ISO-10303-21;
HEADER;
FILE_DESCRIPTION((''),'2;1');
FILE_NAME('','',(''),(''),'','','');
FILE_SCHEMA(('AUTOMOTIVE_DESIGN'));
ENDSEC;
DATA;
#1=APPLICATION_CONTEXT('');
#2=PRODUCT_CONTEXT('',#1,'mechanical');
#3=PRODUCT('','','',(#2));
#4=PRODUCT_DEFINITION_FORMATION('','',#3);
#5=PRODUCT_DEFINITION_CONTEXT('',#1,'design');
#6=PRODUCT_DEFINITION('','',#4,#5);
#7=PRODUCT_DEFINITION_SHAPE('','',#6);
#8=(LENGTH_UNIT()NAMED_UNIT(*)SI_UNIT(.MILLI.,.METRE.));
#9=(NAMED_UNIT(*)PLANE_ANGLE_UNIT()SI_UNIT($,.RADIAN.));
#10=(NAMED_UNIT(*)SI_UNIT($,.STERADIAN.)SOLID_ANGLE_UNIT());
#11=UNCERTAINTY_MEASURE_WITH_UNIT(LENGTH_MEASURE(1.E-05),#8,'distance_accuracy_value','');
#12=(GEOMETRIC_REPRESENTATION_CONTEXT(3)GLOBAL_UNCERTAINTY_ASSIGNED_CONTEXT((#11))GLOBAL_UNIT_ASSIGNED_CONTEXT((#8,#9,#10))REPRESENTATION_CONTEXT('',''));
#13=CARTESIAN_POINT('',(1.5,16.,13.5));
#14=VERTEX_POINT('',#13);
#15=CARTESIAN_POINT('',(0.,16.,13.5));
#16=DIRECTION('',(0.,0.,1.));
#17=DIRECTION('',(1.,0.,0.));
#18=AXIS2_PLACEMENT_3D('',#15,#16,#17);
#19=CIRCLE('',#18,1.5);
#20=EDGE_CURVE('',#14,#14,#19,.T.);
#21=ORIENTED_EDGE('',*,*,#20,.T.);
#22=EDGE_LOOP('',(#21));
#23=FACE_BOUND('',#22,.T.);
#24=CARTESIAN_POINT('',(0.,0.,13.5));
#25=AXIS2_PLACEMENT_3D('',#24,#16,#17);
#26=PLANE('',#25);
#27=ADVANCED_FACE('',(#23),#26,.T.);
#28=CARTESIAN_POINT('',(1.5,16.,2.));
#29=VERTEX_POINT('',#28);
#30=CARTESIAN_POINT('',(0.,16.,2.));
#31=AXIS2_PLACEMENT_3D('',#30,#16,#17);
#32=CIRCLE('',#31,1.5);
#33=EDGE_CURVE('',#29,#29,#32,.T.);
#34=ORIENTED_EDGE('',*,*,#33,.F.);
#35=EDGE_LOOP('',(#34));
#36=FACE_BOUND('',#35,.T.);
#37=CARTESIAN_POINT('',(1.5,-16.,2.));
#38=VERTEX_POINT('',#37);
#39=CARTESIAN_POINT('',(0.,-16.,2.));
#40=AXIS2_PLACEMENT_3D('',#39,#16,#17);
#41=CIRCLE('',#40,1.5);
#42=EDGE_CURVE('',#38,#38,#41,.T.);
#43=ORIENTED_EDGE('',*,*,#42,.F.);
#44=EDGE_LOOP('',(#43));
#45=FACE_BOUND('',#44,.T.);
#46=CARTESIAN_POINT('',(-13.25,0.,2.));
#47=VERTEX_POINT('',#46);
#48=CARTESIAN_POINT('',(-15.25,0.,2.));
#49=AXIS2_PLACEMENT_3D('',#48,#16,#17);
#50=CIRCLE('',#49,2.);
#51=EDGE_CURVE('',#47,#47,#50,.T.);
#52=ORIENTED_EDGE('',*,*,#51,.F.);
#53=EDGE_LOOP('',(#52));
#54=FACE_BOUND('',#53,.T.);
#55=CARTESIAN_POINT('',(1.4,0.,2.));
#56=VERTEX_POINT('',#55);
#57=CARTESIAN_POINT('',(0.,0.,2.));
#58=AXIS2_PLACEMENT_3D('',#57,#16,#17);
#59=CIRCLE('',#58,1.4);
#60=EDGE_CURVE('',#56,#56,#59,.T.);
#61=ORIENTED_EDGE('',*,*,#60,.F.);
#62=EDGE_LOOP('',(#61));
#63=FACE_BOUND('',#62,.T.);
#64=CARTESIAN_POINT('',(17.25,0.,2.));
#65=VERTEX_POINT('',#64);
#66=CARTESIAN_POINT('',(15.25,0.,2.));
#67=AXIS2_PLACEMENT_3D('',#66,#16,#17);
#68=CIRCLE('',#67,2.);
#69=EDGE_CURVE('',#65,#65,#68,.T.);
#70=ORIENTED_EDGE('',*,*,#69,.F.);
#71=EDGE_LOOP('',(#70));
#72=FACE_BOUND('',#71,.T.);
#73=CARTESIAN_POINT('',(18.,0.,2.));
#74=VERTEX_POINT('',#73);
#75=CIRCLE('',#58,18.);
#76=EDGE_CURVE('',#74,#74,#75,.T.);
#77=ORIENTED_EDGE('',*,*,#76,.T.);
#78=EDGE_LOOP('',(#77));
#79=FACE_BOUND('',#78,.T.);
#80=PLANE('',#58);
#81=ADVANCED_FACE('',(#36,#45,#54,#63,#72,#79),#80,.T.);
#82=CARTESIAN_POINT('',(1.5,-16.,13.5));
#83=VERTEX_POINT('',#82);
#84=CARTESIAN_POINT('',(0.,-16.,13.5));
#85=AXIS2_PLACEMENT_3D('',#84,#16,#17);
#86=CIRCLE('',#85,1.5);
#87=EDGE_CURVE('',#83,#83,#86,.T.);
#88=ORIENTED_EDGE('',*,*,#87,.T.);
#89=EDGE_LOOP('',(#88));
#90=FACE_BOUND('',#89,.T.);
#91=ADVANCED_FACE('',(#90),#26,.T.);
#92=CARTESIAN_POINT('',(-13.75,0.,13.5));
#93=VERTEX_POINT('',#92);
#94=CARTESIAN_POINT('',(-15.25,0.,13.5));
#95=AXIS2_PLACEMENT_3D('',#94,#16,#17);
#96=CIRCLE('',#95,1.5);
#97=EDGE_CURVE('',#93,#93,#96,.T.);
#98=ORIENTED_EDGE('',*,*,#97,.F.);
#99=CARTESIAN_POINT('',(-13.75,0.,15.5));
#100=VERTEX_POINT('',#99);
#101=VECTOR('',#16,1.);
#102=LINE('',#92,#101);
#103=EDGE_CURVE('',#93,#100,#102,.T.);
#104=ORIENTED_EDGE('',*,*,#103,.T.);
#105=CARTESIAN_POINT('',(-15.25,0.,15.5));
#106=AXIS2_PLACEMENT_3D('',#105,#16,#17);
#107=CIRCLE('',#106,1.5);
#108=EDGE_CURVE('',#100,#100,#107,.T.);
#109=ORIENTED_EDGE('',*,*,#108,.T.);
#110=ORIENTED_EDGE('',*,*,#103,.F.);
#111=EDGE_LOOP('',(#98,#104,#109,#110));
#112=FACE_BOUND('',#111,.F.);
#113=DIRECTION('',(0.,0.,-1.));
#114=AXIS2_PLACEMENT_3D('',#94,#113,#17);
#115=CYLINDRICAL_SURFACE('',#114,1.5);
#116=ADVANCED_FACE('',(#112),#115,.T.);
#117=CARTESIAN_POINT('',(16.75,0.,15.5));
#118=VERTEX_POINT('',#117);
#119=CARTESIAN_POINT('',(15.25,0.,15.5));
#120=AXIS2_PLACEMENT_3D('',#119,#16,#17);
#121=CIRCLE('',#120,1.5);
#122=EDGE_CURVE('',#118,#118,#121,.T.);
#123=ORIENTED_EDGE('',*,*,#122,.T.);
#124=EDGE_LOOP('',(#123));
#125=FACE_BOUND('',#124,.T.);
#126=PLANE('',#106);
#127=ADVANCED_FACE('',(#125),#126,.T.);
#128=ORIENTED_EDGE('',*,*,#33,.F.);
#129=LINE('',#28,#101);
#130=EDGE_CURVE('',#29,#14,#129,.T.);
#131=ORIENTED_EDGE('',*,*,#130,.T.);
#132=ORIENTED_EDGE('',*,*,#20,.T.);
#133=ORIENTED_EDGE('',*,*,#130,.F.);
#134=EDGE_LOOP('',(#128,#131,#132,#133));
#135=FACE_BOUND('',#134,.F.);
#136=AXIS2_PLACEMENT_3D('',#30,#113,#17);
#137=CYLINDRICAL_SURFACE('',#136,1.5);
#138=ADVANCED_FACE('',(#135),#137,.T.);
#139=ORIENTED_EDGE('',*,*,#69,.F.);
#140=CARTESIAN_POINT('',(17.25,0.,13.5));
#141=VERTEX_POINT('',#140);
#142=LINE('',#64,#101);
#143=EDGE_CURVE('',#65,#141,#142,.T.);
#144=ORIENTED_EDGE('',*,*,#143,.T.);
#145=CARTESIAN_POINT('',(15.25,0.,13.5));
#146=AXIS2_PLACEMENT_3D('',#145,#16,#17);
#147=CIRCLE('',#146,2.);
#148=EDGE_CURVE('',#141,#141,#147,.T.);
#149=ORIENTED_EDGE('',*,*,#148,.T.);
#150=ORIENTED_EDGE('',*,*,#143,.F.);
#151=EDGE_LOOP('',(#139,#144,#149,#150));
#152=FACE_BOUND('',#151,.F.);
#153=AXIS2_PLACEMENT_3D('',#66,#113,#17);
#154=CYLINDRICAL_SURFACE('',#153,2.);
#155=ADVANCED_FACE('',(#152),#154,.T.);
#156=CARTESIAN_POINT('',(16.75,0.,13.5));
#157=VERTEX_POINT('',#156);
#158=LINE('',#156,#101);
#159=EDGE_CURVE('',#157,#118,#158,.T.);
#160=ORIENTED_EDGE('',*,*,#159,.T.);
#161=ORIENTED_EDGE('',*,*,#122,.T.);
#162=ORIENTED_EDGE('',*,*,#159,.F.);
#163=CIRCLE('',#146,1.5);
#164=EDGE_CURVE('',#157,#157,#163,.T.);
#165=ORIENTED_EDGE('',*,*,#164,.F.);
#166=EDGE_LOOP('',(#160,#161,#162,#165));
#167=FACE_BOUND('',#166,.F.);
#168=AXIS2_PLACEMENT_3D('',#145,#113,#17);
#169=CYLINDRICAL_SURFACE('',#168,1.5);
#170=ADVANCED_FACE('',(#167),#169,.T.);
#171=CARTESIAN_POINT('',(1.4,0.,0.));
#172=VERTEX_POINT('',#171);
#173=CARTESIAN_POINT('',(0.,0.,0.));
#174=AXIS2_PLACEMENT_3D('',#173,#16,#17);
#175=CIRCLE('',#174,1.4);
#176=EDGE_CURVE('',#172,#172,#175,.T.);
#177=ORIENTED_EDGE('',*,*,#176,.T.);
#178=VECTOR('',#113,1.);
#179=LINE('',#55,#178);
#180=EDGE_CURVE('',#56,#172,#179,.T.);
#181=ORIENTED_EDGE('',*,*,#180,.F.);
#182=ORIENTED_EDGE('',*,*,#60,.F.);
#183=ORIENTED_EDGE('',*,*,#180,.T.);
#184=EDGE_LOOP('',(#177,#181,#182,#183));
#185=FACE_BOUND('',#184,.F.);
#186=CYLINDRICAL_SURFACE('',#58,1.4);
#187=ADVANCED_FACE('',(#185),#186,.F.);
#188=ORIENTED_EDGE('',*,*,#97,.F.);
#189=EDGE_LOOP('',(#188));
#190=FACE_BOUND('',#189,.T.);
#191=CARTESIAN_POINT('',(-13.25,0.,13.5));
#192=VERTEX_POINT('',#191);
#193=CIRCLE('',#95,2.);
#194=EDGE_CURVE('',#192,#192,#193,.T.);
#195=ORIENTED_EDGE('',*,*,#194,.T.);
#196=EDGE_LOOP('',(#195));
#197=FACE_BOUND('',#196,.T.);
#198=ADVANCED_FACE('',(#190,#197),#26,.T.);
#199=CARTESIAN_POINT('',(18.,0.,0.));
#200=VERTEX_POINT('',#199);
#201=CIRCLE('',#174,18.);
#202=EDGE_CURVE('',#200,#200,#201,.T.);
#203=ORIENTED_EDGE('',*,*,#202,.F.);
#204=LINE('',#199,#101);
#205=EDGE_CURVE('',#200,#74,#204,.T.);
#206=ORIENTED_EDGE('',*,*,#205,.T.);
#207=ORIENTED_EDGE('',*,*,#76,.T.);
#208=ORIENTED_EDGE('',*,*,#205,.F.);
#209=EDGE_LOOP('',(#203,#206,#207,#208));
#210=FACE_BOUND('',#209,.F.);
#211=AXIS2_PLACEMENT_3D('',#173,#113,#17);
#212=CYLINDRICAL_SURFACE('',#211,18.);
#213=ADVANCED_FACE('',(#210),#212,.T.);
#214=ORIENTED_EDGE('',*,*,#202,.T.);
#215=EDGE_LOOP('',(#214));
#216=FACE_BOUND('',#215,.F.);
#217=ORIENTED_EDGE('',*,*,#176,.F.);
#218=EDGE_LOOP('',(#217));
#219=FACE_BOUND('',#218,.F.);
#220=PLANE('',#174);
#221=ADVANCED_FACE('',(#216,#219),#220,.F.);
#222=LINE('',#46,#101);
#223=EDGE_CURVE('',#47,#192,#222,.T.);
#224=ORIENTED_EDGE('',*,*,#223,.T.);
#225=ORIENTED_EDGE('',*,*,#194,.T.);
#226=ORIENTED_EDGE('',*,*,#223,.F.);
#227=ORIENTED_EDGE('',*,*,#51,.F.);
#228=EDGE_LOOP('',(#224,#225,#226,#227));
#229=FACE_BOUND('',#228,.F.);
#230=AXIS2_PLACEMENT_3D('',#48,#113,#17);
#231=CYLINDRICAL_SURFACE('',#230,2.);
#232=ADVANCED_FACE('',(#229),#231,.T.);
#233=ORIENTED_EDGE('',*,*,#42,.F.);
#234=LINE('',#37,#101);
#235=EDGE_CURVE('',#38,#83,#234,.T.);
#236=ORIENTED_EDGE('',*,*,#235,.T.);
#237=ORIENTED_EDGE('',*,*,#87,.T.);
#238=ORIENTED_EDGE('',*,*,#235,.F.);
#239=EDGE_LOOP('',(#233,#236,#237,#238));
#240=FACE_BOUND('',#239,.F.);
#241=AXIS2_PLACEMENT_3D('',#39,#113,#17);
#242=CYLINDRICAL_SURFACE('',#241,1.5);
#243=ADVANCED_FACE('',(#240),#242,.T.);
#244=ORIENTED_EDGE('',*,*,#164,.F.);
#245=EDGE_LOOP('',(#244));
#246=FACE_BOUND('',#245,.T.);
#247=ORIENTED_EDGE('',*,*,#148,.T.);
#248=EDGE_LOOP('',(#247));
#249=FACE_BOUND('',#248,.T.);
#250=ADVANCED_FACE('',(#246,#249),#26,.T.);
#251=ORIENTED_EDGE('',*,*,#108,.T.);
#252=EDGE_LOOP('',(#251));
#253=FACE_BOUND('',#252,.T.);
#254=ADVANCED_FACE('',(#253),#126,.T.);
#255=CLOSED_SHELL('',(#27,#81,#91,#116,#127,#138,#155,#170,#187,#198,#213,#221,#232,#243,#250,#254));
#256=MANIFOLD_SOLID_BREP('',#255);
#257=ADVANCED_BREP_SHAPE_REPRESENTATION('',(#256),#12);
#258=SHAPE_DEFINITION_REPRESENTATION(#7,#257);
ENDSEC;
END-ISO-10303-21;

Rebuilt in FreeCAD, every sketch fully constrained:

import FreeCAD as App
import Part
import Sketcher
Q = App.Units.Quantity

doc = App.newDocument("Part")
body = doc.addObject("PartDesign::Body", "Body")

# Sketch on XY plane
sketch1 = body.newObject("Sketcher::SketchObject", "Sketch")
sketch1.AttachmentSupport = (doc.getObject("XY_Plane"), [""])
sketch1.MapMode = "FlatFace"
sketch1.addGeometry(Part.Circle(App.Vector(0, 0, 0), App.Vector(0, 0, 1), 18), False)
sketch1.addConstraint(Sketcher.Constraint("Coincident", 0, 3, -1, 1))
sketch1.addConstraint(Sketcher.Constraint("Diameter", 0, Q("36 mm")))
pad1 = body.newObject("PartDesign::Pad", "Pad")
pad1.Profile = sketch1
pad1.Length = 2

# Sketch on XY plane
sketch2 = body.newObject("Sketcher::SketchObject", "Sketch001")
sketch2.AttachmentSupport = (doc.getObject("XY_Plane"), [""])
sketch2.MapMode = "FlatFace"
sketch2.AttachmentOffset = App.Placement(App.Vector(0, 0, 2), App.Rotation())
sketch2.addGeometry(Part.Circle(App.Vector(-15.2, 0, 0), App.Vector(0, 0, 1), 2), False)
sketch2.addGeometry(Part.Circle(App.Vector(15.2, 0, 0), App.Vector(0, 0, 1), 2), False)
sketch2.addConstraint(Sketcher.Constraint("Equal", 0, 1))
sketch2.addConstraint(Sketcher.Constraint("Symmetric", 0, 3, 1, 3, -1, 1))
sketch2.addConstraint(Sketcher.Constraint("PointOnObject", 0, 3, -1))
sketch2.addConstraint(Sketcher.Constraint("Diameter", 0, Q("4 mm")))
sketch2.addConstraint(Sketcher.Constraint("DistanceX", 0, 3, 1, 3, Q("30.5 mm")))
pad2 = body.newObject("PartDesign::Pad", "Pad001")
pad2.Profile = sketch2
pad2.Length = 11.5

# Sketch on XY plane
sketch3 = body.newObject("Sketcher::SketchObject", "Sketch002")
sketch3.AttachmentSupport = (doc.getObject("XY_Plane"), [""])
sketch3.MapMode = "FlatFace"
sketch3.AttachmentOffset = App.Placement(App.Vector(0, 0, 13.5), App.Rotation())
sketch3.addGeometry(Part.Circle(App.Vector(-15.2, 0, 0), App.Vector(0, 0, 1), 1.5), False)
sketch3.addGeometry(Part.Circle(App.Vector(15.2, 0, 0), App.Vector(0, 0, 1), 1.5), False)
sketch3.addConstraint(Sketcher.Constraint("Equal", 0, 1))
sketch3.addConstraint(Sketcher.Constraint("Symmetric", 0, 3, 1, 3, -1, 1))
sketch3.addConstraint(Sketcher.Constraint("PointOnObject", 0, 3, -1))
sketch3.addConstraint(Sketcher.Constraint("Diameter", 0, Q("3 mm")))
sketch3.addConstraint(Sketcher.Constraint("DistanceX", 0, 3, 1, 3, Q("30.5 mm")))
pad3 = body.newObject("PartDesign::Pad", "Pad002")
pad3.Profile = sketch3
pad3.Length = 2

# Sketch on XY plane
sketch4 = body.newObject("Sketcher::SketchObject", "Sketch003")
sketch4.AttachmentSupport = (doc.getObject("XY_Plane"), [""])
sketch4.MapMode = "FlatFace"
sketch4.AttachmentOffset = App.Placement(App.Vector(0, 0, 2), App.Rotation())
sketch4.addGeometry(Part.Circle(App.Vector(0, 16, 0), App.Vector(0, 0, 1), 1.5), False)
sketch4.addGeometry(Part.Circle(App.Vector(0, -16, 0), App.Vector(0, 0, 1), 1.5), False)
sketch4.addConstraint(Sketcher.Constraint("Equal", 0, 1))
sketch4.addConstraint(Sketcher.Constraint("Symmetric", 0, 3, 1, 3, -1, 1))
sketch4.addConstraint(Sketcher.Constraint("PointOnObject", 0, 3, -2))
sketch4.addConstraint(Sketcher.Constraint("Diameter", 0, Q("3 mm")))
sketch4.addConstraint(Sketcher.Constraint("DistanceY", -1, 1, 0, 3, Q("16 mm")))
pad4 = body.newObject("PartDesign::Pad", "Pad003")
pad4.Profile = sketch4
pad4.Length = 11.5

# Sketch on XY plane
sketch5 = body.newObject("Sketcher::SketchObject", "Sketch004")
sketch5.AttachmentSupport = (doc.getObject("XY_Plane"), [""])
sketch5.MapMode = "FlatFace"
sketch5.AttachmentOffset = App.Placement(App.Vector(0, 0, 2), App.Rotation())
sketch5.addGeometry(Part.Circle(App.Vector(0, 0, 0), App.Vector(0, 0, 1), 1.4), False)
sketch5.addConstraint(Sketcher.Constraint("Coincident", 0, 3, -1, 1))
sketch5.addConstraint(Sketcher.Constraint("Diameter", 0, Q("2.8 mm")))
pocket1 = body.newObject("PartDesign::Pocket", "Pocket")
pocket1.Profile = sketch5
pocket1.Length = 3

doc.recompute()
